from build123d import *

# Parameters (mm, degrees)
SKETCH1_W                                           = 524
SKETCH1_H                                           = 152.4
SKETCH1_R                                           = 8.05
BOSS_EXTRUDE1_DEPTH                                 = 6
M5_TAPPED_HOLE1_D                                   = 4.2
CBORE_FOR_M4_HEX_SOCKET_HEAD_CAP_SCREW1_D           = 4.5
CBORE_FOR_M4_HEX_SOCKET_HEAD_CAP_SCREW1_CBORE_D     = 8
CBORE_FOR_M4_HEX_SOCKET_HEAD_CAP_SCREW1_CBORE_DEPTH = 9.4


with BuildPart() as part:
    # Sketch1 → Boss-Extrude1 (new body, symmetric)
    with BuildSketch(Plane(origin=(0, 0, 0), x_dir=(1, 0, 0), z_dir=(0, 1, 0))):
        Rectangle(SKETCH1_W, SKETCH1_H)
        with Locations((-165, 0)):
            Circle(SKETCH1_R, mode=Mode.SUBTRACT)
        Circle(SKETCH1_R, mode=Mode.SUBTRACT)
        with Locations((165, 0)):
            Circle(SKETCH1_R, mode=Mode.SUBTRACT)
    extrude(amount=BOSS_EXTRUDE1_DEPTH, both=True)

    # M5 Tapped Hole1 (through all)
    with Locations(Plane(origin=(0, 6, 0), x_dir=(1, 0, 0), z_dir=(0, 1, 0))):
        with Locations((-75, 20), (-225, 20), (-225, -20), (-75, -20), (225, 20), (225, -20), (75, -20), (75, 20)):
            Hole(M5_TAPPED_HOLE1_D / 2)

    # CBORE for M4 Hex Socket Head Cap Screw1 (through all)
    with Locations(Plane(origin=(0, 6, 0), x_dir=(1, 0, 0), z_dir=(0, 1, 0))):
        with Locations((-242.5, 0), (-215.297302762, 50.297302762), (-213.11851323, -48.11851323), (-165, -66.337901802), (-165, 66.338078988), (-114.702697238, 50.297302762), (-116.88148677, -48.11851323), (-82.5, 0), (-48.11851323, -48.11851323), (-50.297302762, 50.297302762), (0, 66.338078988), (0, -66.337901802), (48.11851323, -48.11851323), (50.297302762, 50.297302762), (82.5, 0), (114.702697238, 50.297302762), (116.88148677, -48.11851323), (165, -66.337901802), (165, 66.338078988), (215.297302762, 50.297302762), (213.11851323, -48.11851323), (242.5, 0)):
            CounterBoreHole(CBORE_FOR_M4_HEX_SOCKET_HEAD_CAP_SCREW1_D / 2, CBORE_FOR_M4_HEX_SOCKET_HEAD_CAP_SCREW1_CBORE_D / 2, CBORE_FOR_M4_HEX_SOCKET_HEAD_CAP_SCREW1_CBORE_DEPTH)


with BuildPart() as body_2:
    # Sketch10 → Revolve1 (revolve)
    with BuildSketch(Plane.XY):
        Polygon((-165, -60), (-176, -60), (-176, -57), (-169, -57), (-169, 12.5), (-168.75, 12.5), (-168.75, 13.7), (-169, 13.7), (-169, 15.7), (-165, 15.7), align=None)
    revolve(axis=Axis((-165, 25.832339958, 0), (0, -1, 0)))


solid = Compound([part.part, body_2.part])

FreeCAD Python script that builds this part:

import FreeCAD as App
import Part
import Sketcher
from FreeCAD import Vector
Q = App.Units.Quantity


def add_polygon(sketch, points):
    """Adds a closed chain of lines whose ends are joined by coincident constraints."""
    first, n = sketch.GeometryCount, len(points)
    for a, b in zip(points, points[1:] + points[:1]):
        sketch.addGeometry(Part.LineSegment(App.Vector(*a, 0), App.Vector(*b, 0)), False)
    for i in range(n):
        sketch.addConstraint(Sketcher.Constraint("Coincident", first + i, 2, first + (i + 1) % n, 1))

doc = App.newDocument("Part")
body = doc.addObject("PartDesign::Body", "Body")

sketch1 = body.newObject("Sketcher::SketchObject", "Sketch")
sketch1.AttachmentSupport = (doc.getObject("XZ_Plane"), [""])
sketch1.MapMode = "FlatFace"
add_polygon(sketch1, [(-262, -76), (-262, 76), (262, 76), (262, -76)])
sketch1.addGeometry(Part.Circle(Vector(-165, 0, 0), Vector(0, 0, 1), 8), False)
sketch1.addGeometry(Part.Circle(Vector(0, 0, 0), Vector(0, 0, 1), 8), False)
sketch1.addGeometry(Part.Circle(Vector(165, 0, 0), Vector(0, 0, 1), 8), False)
sketch1.addConstraint(Sketcher.Constraint("Vertical", 0))
sketch1.addConstraint(Sketcher.Constraint("Horizontal", 1))
sketch1.addConstraint(Sketcher.Constraint("Vertical", 2))
sketch1.addConstraint(Sketcher.Constraint("Horizontal", 3))
sketch1.addConstraint(Sketcher.Constraint("Coincident", 5, 3, -1, 1))
sketch1.addConstraint(Sketcher.Constraint("Equal", 4, 5))
sketch1.addConstraint(Sketcher.Constraint("Equal", 5, 6))
sketch1.addConstraint(Sketcher.Constraint("Symmetric", 4, 3, 6, 3, -1, 1))
sketch1.addConstraint(Sketcher.Constraint("Symmetric", 0, 2, 2, 2, -1, 1))
sketch1.addConstraint(Sketcher.Constraint("PointOnObject", 4, 3, -1))
sketch1.addConstraint(Sketcher.Constraint("Diameter", 4, Q("16.1 mm")))
sketch1.addConstraint(Sketcher.Constraint("DistanceX", 1, 1, 1, 2, Q("524 mm")))
sketch1.addConstraint(Sketcher.Constraint("DistanceY", 0, 1, 0, 2, Q("152.4 mm")))
sketch1.addConstraint(Sketcher.Constraint("DistanceX", 4, 3, -1, 1, Q("165 mm")))
pad1 = body.newObject("PartDesign::Pad", "Pad")
pad1.Profile = sketch1
pad1.Length = 12
pad1.Midplane = True

sketch2 = body.newObject("Sketcher::SketchObject", "Sketch001")
sketch2.AttachmentSupport = (doc.getObject("XZ_Plane"), [""])
sketch2.MapMode = "FlatFace"
sketch2.AttachmentOffset = App.Placement(Vector(0, 0, -6), App.Rotation())
sketch2.addGeometry(Part.Circle(Vector(-75, -20, 0), Vector(0, 0, 1), 2.1), False)
sketch2.addGeometry(Part.Circle(Vector(-225, -20, 0), Vector(0, 0, 1), 2.1), False)
sketch2.addGeometry(Part.Circle(Vector(-225, 20, 0), Vector(0, 0, 1), 2.1), False)
sketch2.addGeometry(Part.Circle(Vector(-75, 20, 0), Vector(0, 0, 1), 2.1), False)
sketch2.addGeometry(Part.Circle(Vector(225, -20, 0), Vector(0, 0, 1), 2.1), False)
sketch2.addGeometry(Part.Circle(Vector(225, 20, 0), Vector(0, 0, 1), 2.1), False)
sketch2.addGeometry(Part.Circle(Vector(75, 20, 0), Vector(0, 0, 1), 2.1), False)
sketch2.addGeometry(Part.Circle(Vector(75, -20, 0), Vector(0, 0, 1), 2.1), False)
sketch2.addConstraint(Sketcher.Constraint("Equal", 0, 1))
sketch2.addConstraint(Sketcher.Constraint("Equal", 1, 2))
sketch2.addConstraint(Sketcher.Constraint("Equal", 2, 3))
sketch2.addConstraint(Sketcher.Constraint("Equal", 3, 4))
sketch2.addConstraint(Sketcher.Constraint("Equal", 4, 5))
sketch2.addConstraint(Sketcher.Constraint("Equal", 5, 6))
sketch2.addConstraint(Sketcher.Constraint("Equal", 6, 7))
sketch2.addConstraint(Sketcher.Constraint("Symmetric", 2, 3, 4, 3, -1, 1))
sketch2.addConstraint(Sketcher.Constraint("Symmetric", 1, 3, 5, 3, -1, 1))
sketch2.addConstraint(Sketcher.Constraint("Symmetric", 0, 3, 6, 3, -1, 1))
sketch2.addConstraint(Sketcher.Constraint("Symmetric", 3, 3, 7, 3, -1, 1))
sketch2.addConstraint(Sketcher.Constraint("Symmetric", 1, 3, 4, 3, -2))
sketch2.addConstraint(Sketcher.Constraint("Symmetric", 3, 3, 6, 3, -2))
sketch2.addConstraint(Sketcher.Constraint("Horizontal", 0, 3, 1, 3))
sketch2.addConstraint(Sketcher.Constraint("Diameter", 0, Q("4.2 mm")))
sketch2.addConstraint(Sketcher.Constraint("DistanceX", 0, 3, -1, 1, Q("75 mm")))
sketch2.addConstraint(Sketcher.Constraint("DistanceY", 0, 3, -1, 1, Q("20 mm")))
sketch2.addConstraint(Sketcher.Constraint("DistanceX", 1, 3, -1, 1, Q("225 mm")))
doc.recompute()
hole = body.newObject("PartDesign::Hole", "Hole")
hole.Profile = sketch2
hole.ThreadType = "None"
hole.Diameter = 4.2
hole.DepthType = "ThroughAll"
hole.Reversed = True

sketch3 = body.newObject("Sketcher::SketchObject", "Sketch002")
sketch3.AttachmentSupport = (doc.getObject("XZ_Plane"), [""])
sketch3.MapMode = "FlatFace"
sketch3.AttachmentOffset = App.Placement(Vector(0, 0, -6), App.Rotation())
sketch3.addGeometry(Part.Circle(Vector(-242.5, 0, 0), Vector(0, 0, 1), 2.2), False)
sketch3.addGeometry(Part.Circle(Vector(-215.3, -50.3, 0), Vector(0, 0, 1), 2.2), False)
sketch3.addGeometry(Part.Circle(Vector(-213.1, 48.1, 0), Vector(0, 0, 1), 2.2), False)
sketch3.addGeometry(Part.Circle(Vector(-165, 66.3, 0), Vector(0, 0, 1), 2.2), False)
sketch3.addGeometry(Part.Circle(Vector(-165, -66.3, 0), Vector(0, 0, 1), 2.2), False)
sketch3.addGeometry(Part.Circle(Vector(-114.7, -50.3, 0), Vector(0, 0, 1), 2.2), False)
sketch3.addGeometry(Part.Circle(Vector(-116.9, 48.1, 0), Vector(0, 0, 1), 2.2), False)
sketch3.addGeometry(Part.Circle(Vector(-82.5, 0, 0), Vector(0, 0, 1), 2.2), False)
sketch3.addGeometry(Part.Circle(Vector(-48.1, 48.1, 0), Vector(0, 0, 1), 2.2), False)
sketch3.addGeometry(Part.Circle(Vector(-50.3, -50.3, 0), Vector(0, 0, 1), 2.2), False)
sketch3.addGeometry(Part.Circle(Vector(0, -66.3, 0), Vector(0, 0, 1), 2.2), False)
sketch3.addGeometry(Part.Circle(Vector(0, 66.3, 0), Vector(0, 0, 1), 2.2), False)
sketch3.addGeometry(Part.Circle(Vector(48.1, 48.1, 0), Vector(0, 0, 1), 2.2), False)
sketch3.addGeometry(Part.Circle(Vector(50.3, -50.3, 0), Vector(0, 0, 1), 2.2), False)
sketch3.addGeometry(Part.Circle(Vector(82.5, 0, 0), Vector(0, 0, 1), 2.2), False)
sketch3.addGeometry(Part.Circle(Vector(114.7, -50.3, 0), Vector(0, 0, 1), 2.2), False)
sketch3.addGeometry(Part.Circle(Vector(116.9, 48.1, 0), Vector(0, 0, 1), 2.2), False)
sketch3.addGeometry(Part.Circle(Vector(165, 66.3, 0), Vector(0, 0, 1), 2.2), False)
sketch3.addGeometry(Part.Circle(Vector(165, -66.3, 0), Vector(0, 0, 1), 2.2), False)
sketch3.addGeometry(Part.Circle(Vector(215.3, -50.3, 0), Vector(0, 0, 1), 2.2), False)
sketch3.addGeometry(Part.Circle(Vector(213.1, 48.1, 0), Vector(0, 0, 1), 2.2), False)
sketch3.addGeometry(Part.Circle(Vector(242.5, 0, 0), Vector(0, 0, 1), 2.2), False)
sketch3.addConstraint(Sketcher.Constraint("Equal", 0, 1))
sketch3.addConstraint(Sketcher.Constraint("Equal", 1, 2))
sketch3.addConstraint(Sketcher.Constraint("Equal", 2, 3))
sketch3.addConstraint(Sketcher.Constraint("Equal", 3, 4))
sketch3.addConstraint(Sketcher.Constraint("Equal", 4, 5))
sketch3.addConstraint(Sketcher.Constraint("Equal", 5, 6))
sketch3.addConstraint(Sketcher.Constraint("Equal", 6, 7))
sketch3.addConstraint(Sketcher.Constraint("Equal", 7, 8))
sketch3.addConstraint(Sketcher.Constraint("Equal", 8, 9))
sketch3.addConstraint(Sketcher.Constraint("Equal", 9, 10))
sketch3.addConstraint(Sketcher.Constraint("Equal", 10, 11))
sketch3.addConstraint(Sketcher.Constraint("Equal", 11, 12))
sketch3.addConstraint(Sketcher.Constraint("Equal", 12, 13))
sketch3.addConstraint(Sketcher.Constraint("Equal", 13, 14))
sketch3.addConstraint(Sketcher.Constraint("Equal", 14, 15))
sketch3.addConstraint(Sketcher.Constraint("Equal", 15, 16))
sketch3.addConstraint(Sketcher.Constraint("Equal", 16, 17))
sketch3.addConstraint(Sketcher.Constraint("Equal", 17, 18))
sketch3.addConstraint(Sketcher.Constraint("Equal", 18, 19))
sketch3.addConstraint(Sketcher.Constraint("Equal", 19, 20))
sketch3.addConstraint(Sketcher.Constraint("Equal", 20, 21))
sketch3.addConstraint(Sketcher.Constraint("Symmetric", 7, 3, 14, 3, -1, 1))
sketch3.addConstraint(Sketcher.Constraint("Symmetric", 0, 3, 21, 3, -1, 1))
sketch3.addConstraint(Sketcher.Constraint("Symmetric", 8, 3, 12, 3, -2))
sketch3.addConstraint(Sketcher.Constraint("Symmetric", 9, 3, 13, 3, -2))
sketch3.addConstraint(Sketcher.Constraint("Symmetric", 5, 3, 15, 3, -2))
sketch3.addConstraint(Sketcher.Constraint("Symmetric", 6, 3, 16, 3, -2))
sketch3.addConstraint(Sketcher.Constraint("Symmetric", 3, 3, 17, 3, -2))
sketch3.addConstraint(Sketcher.Constraint("Symmetric", 4, 3, 18, 3, -2))
sketch3.addConstraint(Sketcher.Constraint("Symmetric", 1, 3, 19, 3, -2))
sketch3.addConstraint(Sketcher.Constraint("Symmetric", 2, 3, 20, 3, -2))
sketch3.addConstraint(Sketcher.Constraint("PointOnObject", 0, 3, -1))
sketch3.addConstraint(Sketcher.Constraint("PointOnObject", 7, 3, -1))
sketch3.addConstraint(Sketcher.Constraint("PointOnObject", 10, 3, -2))
sketch3.addConstraint(Sketcher.Constraint("PointOnObject", 11, 3, -2))
sketch3.addConstraint(Sketcher.Constraint("Horizontal", 1, 3, 5, 3))
sketch3.addConstraint(Sketcher.Constraint("Horizontal", 2, 3, 6, 3))
sketch3.addConstraint(Sketcher.Constraint("Horizontal", 6, 3, 8, 3))
sketch3.addConstraint(Sketcher.Constraint("Horizontal", 5, 3, 9, 3))
sketch3.addConstraint(Sketcher.Constraint("Horizontal", 4, 3, 10, 3))
sketch3.addConstraint(Sketcher.Constraint("Horizontal", 3, 3, 11, 3))
sketch3.addConstraint(Sketcher.Constraint("Vertical", 3, 3, 4, 3))
sketch3.addConstraint(Sketcher.Constraint("Diameter", 0, Q("4.5 mm")))
sketch3.addConstraint(Sketcher.Constraint("DistanceX", 3, 3, -1, 1, Q("165 mm")))
sketch3.addConstraint(Sketcher.Constraint("DistanceX", 0, 3, -1, 1, Q("242.5 mm")))
sketch3.addConstraint(Sketcher.Constraint("DistanceX", 7, 3, -1, 1, Q("82.5 mm")))
sketch3.addConstraint(Sketcher.Constraint("DistanceY", -1, 1, 3, 3, Q("66.337902 mm")))
sketch3.addConstraint(Sketcher.Constraint("DistanceY", 4, 3, -1, 1, Q("66.338079 mm")))
sketch3.addConstraint(Sketcher.Constraint("DistanceX", 1, 3, 2, 3, Q("2.17879 mm")))
sketch3.addConstraint(Sketcher.Constraint("DistanceY", 2, 3, 3, 3, Q("18.219389 mm")))
sketch3.addConstraint(Sketcher.Constraint("DistanceX", 6, 3, 5, 3, Q("2.17879 mm")))
sketch3.addConstraint(Sketcher.Constraint("DistanceX", 9, 3, 8, 3, Q("2.17879 mm")))
sketch3.addConstraint(Sketcher.Constraint("DistanceX", 1, 3, -1, 1, Q("215.297303 mm")))
sketch3.addConstraint(Sketcher.Constraint("DistanceY", 1, 3, -1, 1, Q("50.297303 mm")))
sketch3.addConstraint(Sketcher.Constraint("DistanceX", 5, 3, -1, 1, Q("114.702697 mm")))
sketch3.addConstraint(Sketcher.Constraint("DistanceX", 8, 3, -1, 1, Q("48.118513 mm")))
doc.recompute()
hole2 = body.newObject("PartDesign::Hole", "Hole001")
hole2.Profile = sketch3
hole2.ThreadType = "None"
hole2.Diameter = 4.5
hole2.DepthType = "ThroughAll"
hole2.HoleCutType = "Counterbore"
hole2.HoleCutDiameter = 8
hole2.HoleCutDepth = 9.4
hole2.Reversed = True
body2 = doc.addObject("PartDesign::Body", "Body001")

sketch4 = body2.newObject("Sketcher::SketchObject", "Sketch003")
sketch4.AttachmentSupport = (doc.getObject("XY_Plane001"), [""])
sketch4.MapMode = "FlatFace"
add_polygon(sketch4, [(-176, -60), (-165, -60), (-165, 15.7), (-169, 15.7), (-169, 13.7), (-168.75, 13.7), (-168.75, 12.5), (-169, 12.5), (-169, -57), (-176, -57)])
sketch4.addGeometry(Part.LineSegment(Vector(-165, 15.7, 0), Vector(-165, -60, 0)), True)
sketch4.addConstraint(Sketcher.Constraint("Horizontal", 0))
sketch4.addConstraint(Sketcher.Constraint("Vertical", 1))
sketch4.addConstraint(Sketcher.Constraint("Horizontal", 2))
sketch4.addConstraint(Sketcher.Constraint("Vertical", 3))
sketch4.addConstraint(Sketcher.Constraint("Horizontal", 4))
sketch4.addConstraint(Sketcher.Constraint("Vertical", 5))
sketch4.addConstraint(Sketcher.Constraint("Horizontal", 6))
sketch4.addConstraint(Sketcher.Constraint("Vertical", 7))
sketch4.addConstraint(Sketcher.Constraint("Horizontal", 8))
sketch4.addConstraint(Sketcher.Constraint("Vertical", 9))
sketch4.addConstraint(Sketcher.Constraint("Vertical", 10))
sketch4.addConstraint(Sketcher.Constraint("Coincident", 10, 1, 1, 2))
sketch4.addConstraint(Sketcher.Constraint("Horizontal", 9, 2, 10, 2))
sketch4.addConstraint(Sketcher.Constraint("Vertical", 3, 2, 6, 2))
sketch4.addConstraint(Sketcher.Constraint("DistanceX", 0, 1, 0, 2, Q("11 mm")))
sketch4.addConstraint(Sketcher.Constraint("DistanceX", 2, 2, 2, 1, Q("4 mm")))
sketch4.addConstraint(Sketcher.Constraint("DistanceY", 3, 2, 3, 1, Q("2 mm")))
sketch4.addConstraint(Sketcher.Constraint("DistanceY", 9, 2, 9, 1, Q("3 mm")))
sketch4.addConstraint(Sketcher.Constraint("DistanceY", 1, 1, 1, 2, Q("75.7 mm")))
sketch4.addConstraint(Sketcher.Constraint("DistanceY", 5, 2, 5, 1, Q("1.2 mm")))
sketch4.addConstraint(Sketcher.Constraint("DistanceX", 0, 2, -1, 1, Q("165 mm")))
sketch4.addConstraint(Sketcher.Constraint("DistanceY", 0, 2, -1, 1, Q("60 mm")))
sketch4.addConstraint(Sketcher.Constraint("DistanceX", 4, 1, 4, 2, Q("0.25 mm")))
revolution = body2.newObject("PartDesign::Revolution", "Revolution")
revolution.Profile = sketch4
revolution.ReferenceAxis = (sketch4, ["Axis0"])
revolution.Angle = 360

doc.recompute()
